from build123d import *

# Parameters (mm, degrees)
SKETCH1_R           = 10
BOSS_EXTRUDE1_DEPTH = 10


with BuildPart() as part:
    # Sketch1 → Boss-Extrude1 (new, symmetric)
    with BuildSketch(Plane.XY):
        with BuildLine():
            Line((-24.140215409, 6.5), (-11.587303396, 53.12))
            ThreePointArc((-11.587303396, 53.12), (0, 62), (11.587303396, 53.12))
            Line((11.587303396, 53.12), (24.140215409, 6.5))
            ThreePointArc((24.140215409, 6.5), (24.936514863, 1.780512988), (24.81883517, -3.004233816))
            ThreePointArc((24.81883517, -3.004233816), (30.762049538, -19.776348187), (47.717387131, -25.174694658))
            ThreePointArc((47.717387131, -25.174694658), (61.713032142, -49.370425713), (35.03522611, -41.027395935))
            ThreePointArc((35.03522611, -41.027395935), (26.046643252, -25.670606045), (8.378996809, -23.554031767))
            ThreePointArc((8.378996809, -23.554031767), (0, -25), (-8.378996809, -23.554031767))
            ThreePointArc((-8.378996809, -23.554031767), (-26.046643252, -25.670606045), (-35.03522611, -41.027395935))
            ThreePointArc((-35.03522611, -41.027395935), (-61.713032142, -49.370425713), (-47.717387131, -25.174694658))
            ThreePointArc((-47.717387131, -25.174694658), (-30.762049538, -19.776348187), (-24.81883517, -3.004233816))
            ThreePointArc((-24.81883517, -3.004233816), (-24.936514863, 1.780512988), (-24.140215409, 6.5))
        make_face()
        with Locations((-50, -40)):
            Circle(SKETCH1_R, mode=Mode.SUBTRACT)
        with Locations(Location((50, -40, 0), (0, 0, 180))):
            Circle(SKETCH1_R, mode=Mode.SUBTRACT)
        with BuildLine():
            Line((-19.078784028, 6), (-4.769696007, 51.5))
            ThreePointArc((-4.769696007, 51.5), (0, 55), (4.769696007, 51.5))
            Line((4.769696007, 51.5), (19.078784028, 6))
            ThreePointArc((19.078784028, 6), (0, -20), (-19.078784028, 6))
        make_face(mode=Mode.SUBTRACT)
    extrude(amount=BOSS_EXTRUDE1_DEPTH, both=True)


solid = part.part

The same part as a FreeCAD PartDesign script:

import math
import FreeCAD as App
import Part
import Sketcher

V = App.Vector
Q = App.Units.Quantity

doc = App.newDocument("Part")
body = doc.addObject("PartDesign::Body", "Body")

# Sketch on XY plane
sketch1 = body.newObject("Sketcher::SketchObject", "Sketch")
sketch1.AttachmentSupport = (doc.getObject("XY_Plane"), [""])
sketch1.MapMode = "FlatFace"
sketch1.addGeometry(Part.LineSegment(V(-11.587303, 53.12, 0), V(-24.140215, 6.5, 0)), False)
sketch1.addGeometry(Part.ArcOfCircle(Part.Circle(V(0, 0, 0), V(0, 0, 1), 25), math.radians(164.929938), math.radians(186.901876)), False)
sketch1.addGeometry(Part.ArcOfCircle(Part.Circle(V(-44.673903, -5.407621, 0), V(0, 0, 1), 20), math.radians(-98.752945), math.radians(6.901876)), False)
sketch1.addGeometry(Part.ArcOfCircle(Part.Circle(V(-50, -40, 0), V(0, 0, 1), 15), math.radians(81.247055), math.radians(356.072562)), False)
sketch1.addGeometry(Part.ArcOfCircle(Part.Circle(V(-15.082194, -42.397257, 0), V(0, 0, 1), 20), math.radians(70.41774), math.radians(176.072562)), False)
sketch1.addGeometry(Part.ArcOfCircle(Part.Circle(V(0, 0, 0), V(0, 0, 1), 25), math.radians(-109.58226), math.radians(-70.41774)), False)
sketch1.addGeometry(Part.ArcOfCircle(Part.Circle(V(15.082194, -42.397257, 0), V(0, 0, 1), 20), math.radians(3.927438), math.radians(109.58226)), False)
sketch1.addGeometry(Part.ArcOfCircle(Part.Circle(V(50, -40, 0), V(0, 0, 1), 15), math.radians(-176.072562), math.radians(98.752945)), False)
sketch1.addGeometry(Part.ArcOfCircle(Part.Circle(V(44.673903, -5.407621, 0), V(0, 0, 1), 20), math.radians(173.098124), math.radians(278.752945)), False)
sketch1.addGeometry(Part.ArcOfCircle(Part.Circle(V(0, 0, 0), V(0, 0, 1), 25), math.radians(-6.901876), math.radians(15.070062)), False)
sketch1.addGeometry(Part.LineSegment(V(24.140215, 6.5, 0), V(11.587303, 53.12, 0)), False)
sketch1.addGeometry(Part.ArcOfCircle(Part.Circle(V(0, 50, 0), V(0, 0, 1), 12), math.radians(15.070062), math.radians(164.929938)), False)
sketch1.addGeometry(Part.Circle(V(50, -40, 0), V(0, 0, 1), 10), False)
sketch1.addGeometry(Part.Circle(V(-50, -40, 0), V(0, 0, 1), 10), False)
sketch1.addGeometry(Part.LineSegment(V(-19.078784, 6, 0), V(-4.769696, 51.5, 0)), False)
sketch1.addGeometry(Part.ArcOfCircle(Part.Circle(V(0, 50, 0), V(0, 0, 1), 5), math.radians(17.457603), math.radians(162.542397)), False)
sketch1.addGeometry(Part.LineSegment(V(4.769696, 51.5, 0), V(19.078784, 6, 0)), False)
sketch1.addGeometry(Part.ArcOfCircle(Part.Circle(V(0, 0, 0), V(0, 0, 1), 20), math.radians(162.542397), math.radians(377.457603)), False)
sketch1.addConstraint(Sketcher.Constraint("Tangent", 0, 2, 1, 1))
sketch1.addConstraint(Sketcher.Constraint("Tangent", 1, 2, 2, 2))
sketch1.addConstraint(Sketcher.Constraint("Tangent", 2, 1, 3, 1))
sketch1.addConstraint(Sketcher.Constraint("Tangent", 3, 2, 4, 2))
sketch1.addConstraint(Sketcher.Constraint("Tangent", 4, 1, 5, 1))
sketch1.addConstraint(Sketcher.Constraint("Tangent", 5, 2, 6, 2))
sketch1.addConstraint(Sketcher.Constraint("Tangent", 6, 1, 7, 1))
sketch1.addConstraint(Sketcher.Constraint("Tangent", 7, 2, 8, 2))
sketch1.addConstraint(Sketcher.Constraint("Tangent", 8, 1, 9, 1))
sketch1.addConstraint(Sketcher.Constraint("Tangent", 9, 2, 10, 1))
sketch1.addConstraint(Sketcher.Constraint("Tangent", 10, 2, 11, 1))
sketch1.addConstraint(Sketcher.Constraint("Tangent", 11, 2, 0, 1))
sketch1.addConstraint(Sketcher.Constraint("Tangent", 14, 2, 15, 2))
sketch1.addConstraint(Sketcher.Constraint("Tangent", 15, 1, 16, 1))
sketch1.addConstraint(Sketcher.Constraint("Tangent", 16, 2, 17, 2))
sketch1.addConstraint(Sketcher.Constraint("Tangent", 17, 1, 14, 1))
sketch1.addConstraint(Sketcher.Constraint("Coincident", 1, 3, -1, 1))
sketch1.addConstraint(Sketcher.Constraint("Coincident", 5, 3, -1, 1))
sketch1.addConstraint(Sketcher.Constraint("Coincident", 9, 3, -1, 1))
sketch1.addConstraint(Sketcher.Constraint("Coincident", 17, 3, -1, 1))
sketch1.addConstraint(Sketcher.Constraint("Coincident", 12, 3, 7, 3))
sketch1.addConstraint(Sketcher.Constraint("Coincident", 13, 3, 3, 3))
sketch1.addConstraint(Sketcher.Constraint("Coincident", 15, 3, 11, 3))
sketch1.addConstraint(Sketcher.Constraint("Equal", 2, 4))
sketch1.addConstraint(Sketcher.Constraint("Equal", 1, 5))
sketch1.addConstraint(Sketcher.Constraint("Equal", 4, 6))
sketch1.addConstraint(Sketcher.Constraint("Equal", 3, 7))
sketch1.addConstraint(Sketcher.Constraint("Equal", 6, 8))
sketch1.addConstraint(Sketcher.Constraint("Equal", 5, 9))
sketch1.addConstraint(Sketcher.Constraint("Equal", 12, 13))
sketch1.addConstraint(Sketcher.Constraint("Equal", 8, 17))
sketch1.addConstraint(Sketcher.Constraint("Symmetric", 3, 3, 7, 3, -2))
sketch1.addConstraint(Sketcher.Constraint("PointOnObject", 11, 3, -2))
sketch1.addConstraint(Sketcher.Constraint("Diameter", 12, Q("20 mm")))
sketch1.addConstraint(Sketcher.Constraint("Radius", 1, Q("25 mm")))
sketch1.addConstraint(Sketcher.Constraint("Radius", 2, Q("20 mm")))
sketch1.addConstraint(Sketcher.Constraint("Radius", 3, Q("15 mm")))
sketch1.addConstraint(Sketcher.Constraint("Radius", 11, Q("12 mm")))
sketch1.addConstraint(Sketcher.Constraint("Radius", 15, Q("5 mm")))
sketch1.addConstraint(Sketcher.Constraint("DistanceX", 3, 3, -1, 1, Q("50 mm")))
sketch1.addConstraint(Sketcher.Constraint("DistanceY", 3, 3, -1, 1, Q("40 mm")))
sketch1.addConstraint(Sketcher.Constraint("DistanceY", -1, 1, 11, 3, Q("50 mm")))
pad1 = body.newObject("PartDesign::Pad", "Pad")
pad1.Profile = sketch1
pad1.Length = 20
pad1.Midplane = True

doc.recompute()
